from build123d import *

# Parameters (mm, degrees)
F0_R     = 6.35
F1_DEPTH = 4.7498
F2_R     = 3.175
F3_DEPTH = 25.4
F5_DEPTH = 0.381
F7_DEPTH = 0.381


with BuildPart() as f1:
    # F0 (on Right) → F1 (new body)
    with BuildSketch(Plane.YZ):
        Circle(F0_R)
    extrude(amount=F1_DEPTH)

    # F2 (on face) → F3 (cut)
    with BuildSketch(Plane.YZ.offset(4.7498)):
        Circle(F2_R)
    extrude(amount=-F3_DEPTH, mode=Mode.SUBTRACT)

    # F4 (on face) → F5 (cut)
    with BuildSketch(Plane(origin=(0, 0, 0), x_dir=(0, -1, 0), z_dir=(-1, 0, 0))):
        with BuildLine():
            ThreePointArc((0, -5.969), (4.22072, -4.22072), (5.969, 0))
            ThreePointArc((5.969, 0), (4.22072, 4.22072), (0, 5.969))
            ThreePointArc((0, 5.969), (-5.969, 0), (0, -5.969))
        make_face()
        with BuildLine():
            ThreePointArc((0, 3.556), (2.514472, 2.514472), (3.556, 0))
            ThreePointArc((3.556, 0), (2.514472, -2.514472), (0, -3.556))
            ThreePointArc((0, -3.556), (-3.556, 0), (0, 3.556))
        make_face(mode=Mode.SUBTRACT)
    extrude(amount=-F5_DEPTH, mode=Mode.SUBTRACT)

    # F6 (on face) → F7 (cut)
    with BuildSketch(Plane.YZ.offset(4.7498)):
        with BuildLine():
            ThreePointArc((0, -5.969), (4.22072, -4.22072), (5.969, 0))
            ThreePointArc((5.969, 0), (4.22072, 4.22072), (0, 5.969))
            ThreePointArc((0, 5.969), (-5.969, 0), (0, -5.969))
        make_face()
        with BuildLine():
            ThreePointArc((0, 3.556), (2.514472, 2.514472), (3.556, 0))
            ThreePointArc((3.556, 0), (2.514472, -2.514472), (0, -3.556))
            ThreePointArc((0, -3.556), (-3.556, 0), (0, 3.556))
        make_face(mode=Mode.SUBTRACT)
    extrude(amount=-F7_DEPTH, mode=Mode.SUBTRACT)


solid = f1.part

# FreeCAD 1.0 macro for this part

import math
import FreeCAD as App
import Part
import Sketcher
from FreeCAD import Vector
Q = App.Units.Quantity

doc = App.newDocument("Part")
params = doc.addObject("Spreadsheet::Sheet", "Params")
for row, (alias, value) in enumerate([
    ("sketch1_diameter", "0.5 in"),
    ("pad1_length", "0.187 in"),
    ("sketch2_diameter", "0.25 in"),
    ("pocket1_length", "1 in"),
    ("sketch3_radius", "0.14 in"),
    ("sketch3_radius2", "0.2350001 in"),
    ("pocket2_length", "0.015 in"),
    ("sketch4_radius", "0.14 in"),
    ("sketch4_radius2", "0.2350001 in"),
    ("pocket3_length", "0.015 in"),
], start=1):
    params.set(f"A{row}", alias)
    params.set(f"B{row}", "=" + value)
    params.setAlias(f"B{row}", alias)

body = doc.addObject("PartDesign::Body", "Body")

sketch1 = body.newObject("Sketcher::SketchObject", "Sketch")
sketch1.AttachmentSupport = (doc.getObject("YZ_Plane"), [""])
sketch1.MapMode = "FlatFace"
sketch1.addGeometry(Part.Circle(Vector(0, 0, 0), Vector(0, 0, 1), 6), False)
sketch1.addConstraint(Sketcher.Constraint("Coincident", 0, 3, -1, 1))
sketch1.addConstraint(Sketcher.Constraint("Diameter", 0, Q("0.5 in")))
sketch1.setExpression("Constraints[1]", "Params.sketch1_diameter")
pad1 = body.newObject("PartDesign::Pad", "Pad")
pad1.Profile = sketch1
pad1.setExpression("Length", "Params.pad1_length")

sketch2 = body.newObject("Sketcher::SketchObject", "Sketch001")
sketch2.AttachmentSupport = (doc.getObject("YZ_Plane"), [""])
sketch2.MapMode = "FlatFace"
sketch2.AttachmentOffset = App.Placement(Vector(0, 0, 0.187 * 25.4), App.Rotation())
sketch2.addGeometry(Part.Circle(Vector(0, 0, 0), Vector(0, 0, 1), 3.2), False)
sketch2.addConstraint(Sketcher.Constraint("Coincident", 0, 3, -1, 1))
sketch2.addConstraint(Sketcher.Constraint("Diameter", 0, Q("0.25 in")))
sketch2.setExpression("Constraints[1]", "Params.sketch2_diameter")
pocket1 = body.newObject("PartDesign::Pocket", "Pocket")
pocket1.Profile = sketch2
pocket1.setExpression("Length", "Params.pocket1_length")

sketch3 = body.newObject("Sketcher::SketchObject", "Sketch002")
sketch3.AttachmentSupport = (doc.getObject("YZ_Plane"), [""])
sketch3.MapMode = "FlatFace"
sketch3.addGeometry(Part.ArcOfCircle(Part.Circle(Vector(0, 0, 0), Vector(0, 0, 1), 6), math.radians(-180), math.radians(-90)), False)
sketch3.addGeometry(Part.ArcOfCircle(Part.Circle(Vector(0, 0, 0), Vector(0, 0, 1), 6), math.radians(90), math.radians(180)), False)
sketch3.addGeometry(Part.ArcOfCircle(Part.Circle(Vector(0, 0, 0), Vector(0, 0, 1), 6), math.radians(-90), math.radians(90)), False)
sketch3.addGeometry(Part.ArcOfCircle(Part.Circle(Vector(0, 0, 0), Vector(0, 0, 1), 3.6), math.radians(-90), math.radians(90)), False)
sketch3.addGeometry(Part.ArcOfCircle(Part.Circle(Vector(0, 0, 0), Vector(0, 0, 1), 3.6), math.radians(90), math.radians(180)), False)
sketch3.addGeometry(Part.ArcOfCircle(Part.Circle(Vector(0, 0, 0), Vector(0, 0, 1), 3.6), math.radians(180), math.radians(270)), False)
sketch3.addConstraint(Sketcher.Constraint("Tangent", 0, 1, 1, 2))
sketch3.addConstraint(Sketcher.Constraint("Tangent", 1, 1, 2, 2))
sketch3.addConstraint(Sketcher.Constraint("Tangent", 2, 1, 0, 2))
sketch3.addConstraint(Sketcher.Constraint("Tangent", 3, 2, 4, 1))
sketch3.addConstraint(Sketcher.Constraint("Tangent", 4, 2, 5, 1))
sketch3.addConstraint(Sketcher.Constraint("Tangent", 5, 2, 3, 1))
sketch3.addConstraint(Sketcher.Constraint("Coincident", 0, 3, -1, 1))
sketch3.addConstraint(Sketcher.Constraint("Coincident", 3, 3, -1, 1))
sketch3.addConstraint(Sketcher.Constraint("PointOnObject", 0, 1, -1))
sketch3.addConstraint(Sketcher.Constraint("PointOnObject", 1, 1, -2))
sketch3.addConstraint(Sketcher.Constraint("PointOnObject", 2, 1, -2))
sketch3.addConstraint(Sketcher.Constraint("PointOnObject", 3, 2, -2))
sketch3.addConstraint(Sketcher.Constraint("PointOnObject", 4, 2, -1))
sketch3.addConstraint(Sketcher.Constraint("PointOnObject", 5, 2, -2))
sketch3.addConstraint(Sketcher.Constraint("Radius", 3, Q("0.14 in")))
sketch3.addConstraint(Sketcher.Constraint("Radius", 0, Q("0.2350001 in")))
sketch3.setExpression("Constraints[14]", "Params.sketch3_radius")
sketch3.setExpression("Constraints[15]", "Params.sketch3_radius2")
pocket2 = body.newObject("PartDesign::Pocket", "Pocket001")
pocket2.Profile = sketch3
pocket2.setExpression("Length", "Params.pocket2_length")
pocket2.Reversed = True

sketch4 = body.newObject("Sketcher::SketchObject", "Sketch003")
sketch4.AttachmentSupport = (doc.getObject("YZ_Plane"), [""])
sketch4.MapMode = "FlatFace"
sketch4.AttachmentOffset = App.Placement(Vector(0, 0, 0.187 * 25.4), App.Rotation())
sketch4.addGeometry(Part.ArcOfCircle(Part.Circle(Vector(0, 0, 0), Vector(0, 0, 1), 6), math.radians(-90), math.radians(0)), False)
sketch4.addGeometry(Part.ArcOfCircle(Part.Circle(Vector(0, 0, 0), Vector(0, 0, 1), 6), math.radians(0), math.radians(90)), False)
sketch4.addGeometry(Part.ArcOfCircle(Part.Circle(Vector(0, 0, 0), Vector(0, 0, 1), 6), math.radians(90), math.radians(270)), False)
sketch4.addGeometry(Part.ArcOfCircle(Part.Circle(Vector(0, 0, 0), Vector(0, 0, 1), 3.6), math.radians(90), math.radians(270)), False)
sketch4.addGeometry(Part.ArcOfCircle(Part.Circle(Vector(0, 0, 0), Vector(0, 0, 1), 3.6), math.radians(0), math.radians(90)), False)
sketch4.addGeometry(Part.ArcOfCircle(Part.Circle(Vector(0, 0, 0), Vector(0, 0, 1), 3.6), math.radians(-90), math.radians(0)), False)
sketch4.addConstraint(Sketcher.Constraint("Tangent", 0, 2, 1, 1))
sketch4.addConstraint(Sketcher.Constraint("Tangent", 1, 2, 2, 1))
sketch4.addConstraint(Sketcher.Constraint("Tangent", 2, 2, 0, 1))
sketch4.addConstraint(Sketcher.Constraint("Tangent", 3, 1, 4, 2))
sketch4.addConstraint(Sketcher.Constraint("Tangent", 4, 1, 5, 2))
sketch4.addConstraint(Sketcher.Constraint("Tangent", 5, 1, 3, 2))
sketch4.addConstraint(Sketcher.Constraint("Coincident", 0, 3, -1, 1))
sketch4.addConstraint(Sketcher.Constraint("Coincident", 3, 3, -1, 1))
sketch4.addConstraint(Sketcher.Constraint("PointOnObject", 0, 2, -1))
sketch4.addConstraint(Sketcher.Constraint("PointOnObject", 1, 2, -2))
sketch4.addConstraint(Sketcher.Constraint("PointOnObject", 2, 2, -2))
sketch4.addConstraint(Sketcher.Constraint("PointOnObject", 3, 1, -2))
sketch4.addConstraint(Sketcher.Constraint("PointOnObject", 4, 1, -1))
sketch4.addConstraint(Sketcher.Constraint("PointOnObject", 5, 1, -2))
sketch4.addConstraint(Sketcher.Constraint("Radius", 3, Q("0.14 in")))
sketch4.addConstraint(Sketcher.Constraint("Radius", 0, Q("0.2350001 in")))
sketch4.setExpression("Constraints[14]", "Params.sketch4_radius")
sketch4.setExpression("Constraints[15]", "Params.sketch4_radius2")
pocket3 = body.newObject("PartDesign::Pocket", "Pocket002")
pocket3.Profile = sketch4
pocket3.setExpression("Length", "Params.pocket3_length")

doc.recompute()
